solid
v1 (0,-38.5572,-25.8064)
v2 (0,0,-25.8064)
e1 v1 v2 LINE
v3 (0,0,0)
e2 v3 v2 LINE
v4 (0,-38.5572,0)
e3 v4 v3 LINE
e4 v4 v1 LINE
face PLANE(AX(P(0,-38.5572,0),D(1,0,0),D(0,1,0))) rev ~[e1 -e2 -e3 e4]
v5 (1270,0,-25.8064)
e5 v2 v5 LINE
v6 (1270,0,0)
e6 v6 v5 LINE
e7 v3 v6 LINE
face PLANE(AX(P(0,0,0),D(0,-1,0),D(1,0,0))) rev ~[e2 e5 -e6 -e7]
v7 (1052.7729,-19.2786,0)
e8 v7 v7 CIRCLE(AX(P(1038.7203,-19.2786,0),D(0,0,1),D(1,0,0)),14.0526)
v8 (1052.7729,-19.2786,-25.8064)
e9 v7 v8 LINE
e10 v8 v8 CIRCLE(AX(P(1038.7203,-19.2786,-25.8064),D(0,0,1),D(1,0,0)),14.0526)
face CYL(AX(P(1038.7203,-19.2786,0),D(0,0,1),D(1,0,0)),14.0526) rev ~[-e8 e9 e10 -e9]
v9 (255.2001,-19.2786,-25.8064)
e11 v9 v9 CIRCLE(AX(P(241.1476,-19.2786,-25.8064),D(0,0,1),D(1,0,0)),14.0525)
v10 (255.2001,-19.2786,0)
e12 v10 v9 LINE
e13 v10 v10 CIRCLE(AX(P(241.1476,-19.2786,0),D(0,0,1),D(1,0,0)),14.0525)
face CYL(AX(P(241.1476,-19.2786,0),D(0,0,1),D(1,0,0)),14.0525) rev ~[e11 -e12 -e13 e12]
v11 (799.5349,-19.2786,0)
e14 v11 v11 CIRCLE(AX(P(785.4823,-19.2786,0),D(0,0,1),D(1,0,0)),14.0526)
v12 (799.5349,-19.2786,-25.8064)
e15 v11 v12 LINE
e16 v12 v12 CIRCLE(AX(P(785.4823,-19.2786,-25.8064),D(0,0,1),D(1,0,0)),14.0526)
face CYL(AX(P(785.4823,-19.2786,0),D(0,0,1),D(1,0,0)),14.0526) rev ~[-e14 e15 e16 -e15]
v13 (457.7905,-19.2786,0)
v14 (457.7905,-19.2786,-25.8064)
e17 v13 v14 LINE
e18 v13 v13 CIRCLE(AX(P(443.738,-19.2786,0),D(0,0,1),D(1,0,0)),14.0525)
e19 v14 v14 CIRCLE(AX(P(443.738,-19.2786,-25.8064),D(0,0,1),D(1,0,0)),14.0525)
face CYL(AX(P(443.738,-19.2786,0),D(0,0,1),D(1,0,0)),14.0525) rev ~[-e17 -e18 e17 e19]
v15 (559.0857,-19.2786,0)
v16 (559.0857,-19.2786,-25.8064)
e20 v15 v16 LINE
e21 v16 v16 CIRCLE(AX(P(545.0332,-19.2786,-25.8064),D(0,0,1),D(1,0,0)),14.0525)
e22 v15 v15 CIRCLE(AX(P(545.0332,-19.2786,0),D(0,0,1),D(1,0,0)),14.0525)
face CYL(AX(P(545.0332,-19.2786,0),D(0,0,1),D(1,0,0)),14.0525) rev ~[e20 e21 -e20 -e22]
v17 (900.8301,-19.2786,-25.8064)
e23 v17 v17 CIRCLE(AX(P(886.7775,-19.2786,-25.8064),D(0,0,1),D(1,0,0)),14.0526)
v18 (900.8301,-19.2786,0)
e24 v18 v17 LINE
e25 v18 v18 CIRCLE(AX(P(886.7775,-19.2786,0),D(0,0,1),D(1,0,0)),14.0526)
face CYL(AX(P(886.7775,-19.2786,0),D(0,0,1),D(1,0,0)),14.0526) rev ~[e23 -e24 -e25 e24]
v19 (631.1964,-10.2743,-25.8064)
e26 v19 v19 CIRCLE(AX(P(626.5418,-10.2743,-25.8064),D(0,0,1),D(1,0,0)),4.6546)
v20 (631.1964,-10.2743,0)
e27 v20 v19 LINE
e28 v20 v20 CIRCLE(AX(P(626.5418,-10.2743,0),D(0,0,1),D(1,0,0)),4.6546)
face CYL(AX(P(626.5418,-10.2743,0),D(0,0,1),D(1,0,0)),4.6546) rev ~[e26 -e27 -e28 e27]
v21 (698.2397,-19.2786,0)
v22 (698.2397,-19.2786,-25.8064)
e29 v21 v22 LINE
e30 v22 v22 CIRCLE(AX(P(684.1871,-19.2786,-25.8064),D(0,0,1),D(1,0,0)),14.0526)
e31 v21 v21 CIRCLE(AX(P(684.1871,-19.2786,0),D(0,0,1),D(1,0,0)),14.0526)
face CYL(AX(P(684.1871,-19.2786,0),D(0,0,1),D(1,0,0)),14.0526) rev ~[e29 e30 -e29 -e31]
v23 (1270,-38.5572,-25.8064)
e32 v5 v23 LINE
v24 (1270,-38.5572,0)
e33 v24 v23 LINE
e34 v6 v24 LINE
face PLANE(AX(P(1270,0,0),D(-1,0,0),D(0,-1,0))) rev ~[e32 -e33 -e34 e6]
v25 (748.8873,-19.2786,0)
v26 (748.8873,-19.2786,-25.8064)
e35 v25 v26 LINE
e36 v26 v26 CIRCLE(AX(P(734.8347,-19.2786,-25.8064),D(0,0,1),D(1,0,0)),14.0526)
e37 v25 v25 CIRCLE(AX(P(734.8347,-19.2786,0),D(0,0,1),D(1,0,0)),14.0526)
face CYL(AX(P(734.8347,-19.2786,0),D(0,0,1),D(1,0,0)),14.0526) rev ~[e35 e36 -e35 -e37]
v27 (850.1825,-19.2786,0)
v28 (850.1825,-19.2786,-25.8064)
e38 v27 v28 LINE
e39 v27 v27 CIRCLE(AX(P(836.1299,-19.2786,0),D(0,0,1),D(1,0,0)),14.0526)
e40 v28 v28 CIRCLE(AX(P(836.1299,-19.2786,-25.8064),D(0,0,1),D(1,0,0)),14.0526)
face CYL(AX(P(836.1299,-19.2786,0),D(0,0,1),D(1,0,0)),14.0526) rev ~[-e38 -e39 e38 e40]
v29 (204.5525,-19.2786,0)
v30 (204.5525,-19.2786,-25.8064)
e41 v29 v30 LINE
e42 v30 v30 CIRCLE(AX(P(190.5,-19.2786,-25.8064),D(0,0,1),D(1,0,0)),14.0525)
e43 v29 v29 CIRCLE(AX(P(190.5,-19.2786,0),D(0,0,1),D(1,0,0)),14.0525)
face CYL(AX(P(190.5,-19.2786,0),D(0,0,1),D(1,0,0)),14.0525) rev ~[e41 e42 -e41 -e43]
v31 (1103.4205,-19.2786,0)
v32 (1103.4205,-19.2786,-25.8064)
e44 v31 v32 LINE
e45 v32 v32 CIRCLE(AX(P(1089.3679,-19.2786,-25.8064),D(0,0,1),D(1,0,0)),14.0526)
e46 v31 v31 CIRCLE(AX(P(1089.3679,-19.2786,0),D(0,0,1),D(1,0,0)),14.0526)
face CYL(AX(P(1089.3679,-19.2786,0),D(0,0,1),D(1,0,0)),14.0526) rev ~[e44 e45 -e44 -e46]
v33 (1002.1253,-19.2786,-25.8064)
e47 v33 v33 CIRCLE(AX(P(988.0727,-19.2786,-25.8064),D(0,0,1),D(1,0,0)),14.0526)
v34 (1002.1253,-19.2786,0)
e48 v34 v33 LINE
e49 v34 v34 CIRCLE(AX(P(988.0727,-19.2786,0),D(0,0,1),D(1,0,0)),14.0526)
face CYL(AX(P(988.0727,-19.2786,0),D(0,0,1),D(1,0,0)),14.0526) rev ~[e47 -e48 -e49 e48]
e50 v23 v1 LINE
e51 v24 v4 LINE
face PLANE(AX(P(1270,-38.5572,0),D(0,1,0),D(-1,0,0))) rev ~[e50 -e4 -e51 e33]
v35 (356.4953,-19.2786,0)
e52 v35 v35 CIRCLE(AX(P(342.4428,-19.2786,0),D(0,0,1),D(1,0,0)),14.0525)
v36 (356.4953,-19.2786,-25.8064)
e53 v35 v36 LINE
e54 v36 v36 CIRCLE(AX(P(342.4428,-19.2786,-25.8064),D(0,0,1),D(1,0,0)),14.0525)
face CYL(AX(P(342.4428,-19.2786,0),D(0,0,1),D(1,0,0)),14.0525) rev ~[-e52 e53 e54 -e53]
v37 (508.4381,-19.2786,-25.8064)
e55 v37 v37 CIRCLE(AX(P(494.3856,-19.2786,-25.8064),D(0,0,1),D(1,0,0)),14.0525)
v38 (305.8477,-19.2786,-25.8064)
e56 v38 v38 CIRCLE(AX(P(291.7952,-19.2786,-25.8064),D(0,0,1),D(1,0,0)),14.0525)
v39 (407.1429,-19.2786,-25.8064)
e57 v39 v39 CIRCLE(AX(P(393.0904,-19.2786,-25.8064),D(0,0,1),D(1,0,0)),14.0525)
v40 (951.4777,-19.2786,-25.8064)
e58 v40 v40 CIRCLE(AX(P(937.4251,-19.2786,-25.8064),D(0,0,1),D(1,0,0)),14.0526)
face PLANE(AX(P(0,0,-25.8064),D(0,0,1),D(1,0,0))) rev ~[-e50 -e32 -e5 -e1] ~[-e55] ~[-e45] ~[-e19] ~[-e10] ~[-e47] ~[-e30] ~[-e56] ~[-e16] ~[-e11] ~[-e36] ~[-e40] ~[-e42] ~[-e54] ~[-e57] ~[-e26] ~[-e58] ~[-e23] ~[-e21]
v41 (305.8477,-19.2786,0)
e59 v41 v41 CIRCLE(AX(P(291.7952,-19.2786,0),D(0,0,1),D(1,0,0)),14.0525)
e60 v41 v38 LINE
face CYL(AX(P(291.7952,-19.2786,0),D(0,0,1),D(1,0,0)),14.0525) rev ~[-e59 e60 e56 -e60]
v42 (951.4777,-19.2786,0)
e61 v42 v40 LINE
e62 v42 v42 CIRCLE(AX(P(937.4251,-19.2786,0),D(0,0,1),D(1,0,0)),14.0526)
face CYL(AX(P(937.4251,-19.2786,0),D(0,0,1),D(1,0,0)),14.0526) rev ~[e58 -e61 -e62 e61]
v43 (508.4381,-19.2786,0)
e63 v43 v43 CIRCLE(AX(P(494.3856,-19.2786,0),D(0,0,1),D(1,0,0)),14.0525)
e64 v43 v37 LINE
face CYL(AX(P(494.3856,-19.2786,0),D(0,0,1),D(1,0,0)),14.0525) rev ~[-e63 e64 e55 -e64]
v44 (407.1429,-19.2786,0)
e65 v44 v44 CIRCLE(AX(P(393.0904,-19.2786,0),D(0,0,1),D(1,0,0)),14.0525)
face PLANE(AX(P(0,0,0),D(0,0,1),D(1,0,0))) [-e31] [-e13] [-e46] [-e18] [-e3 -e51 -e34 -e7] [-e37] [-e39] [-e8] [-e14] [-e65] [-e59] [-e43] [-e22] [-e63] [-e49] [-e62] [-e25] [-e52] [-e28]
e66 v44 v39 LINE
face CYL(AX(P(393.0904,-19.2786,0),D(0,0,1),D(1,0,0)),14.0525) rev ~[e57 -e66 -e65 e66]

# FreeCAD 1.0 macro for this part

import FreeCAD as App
import Part
import Sketcher
from FreeCAD import Vector
Q = App.Units.Quantity


def add_polygon(sketch, points):
    """Adds a closed chain of lines whose ends are joined by coincident constraints."""
    first, n = sketch.GeometryCount, len(points)
    for a, b in zip(points, points[1:] + points[:1]):
        sketch.addGeometry(Part.LineSegment(App.Vector(*a, 0), App.Vector(*b, 0)), False)
    for i in range(n):
        sketch.addConstraint(Sketcher.Constraint("Coincident", first + i, 2, first + (i + 1) % n, 1))

doc = App.newDocument("Part")
body = doc.addObject("PartDesign::Body", "Body")

# Sketch on XY plane
sketch1 = body.newObject("Sketcher::SketchObject", "Sketch")
sketch1.AttachmentSupport = (doc.getObject("XY_Plane"), [""])
sketch1.MapMode = "FlatFace"
add_polygon(sketch1, [(1270, 0), (0, 0), (0, -38.5572), (1270, -38.5572)])  # lines 0-3
sketch1.addGeometry(Part.Circle(Vector(190.5, -19.2786, 0), Vector(0, 0, 1), 14.0525), False)  # 4
sketch1.addGeometry(Part.Circle(Vector(241.1476, -19.2786, 0), Vector(0, 0, 1), 14.0525), False)  # 5
sketch1.addGeometry(Part.Circle(Vector(291.7952, -19.2786, 0), Vector(0, 0, 1), 14.0525), False)  # 6
sketch1.addGeometry(Part.Circle(Vector(342.4428, -19.2786, 0), Vector(0, 0, 1), 14.0525), False)  # 7
sketch1.addGeometry(Part.Circle(Vector(393.0904, -19.2786, 0), Vector(0, 0, 1), 14.0525), False)  # 8
sketch1.addGeometry(Part.Circle(Vector(443.738, -19.2786, 0), Vector(0, 0, 1), 14.0525), False)  # 9
sketch1.addGeometry(Part.Circle(Vector(494.3856, -19.2786, 0), Vector(0, 0, 1), 14.0525), False)  # 10
sketch1.addGeometry(Part.Circle(Vector(545.0332, -19.2786, 0), Vector(0, 0, 1), 14.0525), False)  # 11
sketch1.addGeometry(Part.Circle(Vector(626.5418, -10.2743, 0), Vector(0, 0, 1), 4.6546), False)  # 12
sketch1.addGeometry(Part.Circle(Vector(684.1871, -19.2786, 0), Vector(0, 0, 1), 14.0526), False)  # 13
sketch1.addGeometry(Part.Circle(Vector(734.8347, -19.2786, 0), Vector(0, 0, 1), 14.0526), False)  # 14
sketch1.addGeometry(Part.Circle(Vector(785.4823, -19.2786, 0), Vector(0, 0, 1), 14.0526), False)  # 15
sketch1.addGeometry(Part.Circle(Vector(836.1299, -19.2786, 0), Vector(0, 0, 1), 14.0526), False)  # 16
sketch1.addGeometry(Part.Circle(Vector(886.7775, -19.2786, 0), Vector(0, 0, 1), 14.0526), False)  # 17
sketch1.addGeometry(Part.Circle(Vector(937.4251, -19.2786, 0), Vector(0, 0, 1), 14.0526), False)  # 18
sketch1.addGeometry(Part.Circle(Vector(988.0727, -19.2786, 0), Vector(0, 0, 1), 14.0526), False)  # 19
sketch1.addGeometry(Part.Circle(Vector(1038.7203, -19.2786, 0), Vector(0, 0, 1), 14.0526), False)  # 20
sketch1.addGeometry(Part.Circle(Vector(1089.3679, -19.2786, 0), Vector(0, 0, 1), 14.0526), False)  # 21
sketch1.addConstraint(Sketcher.Constraint("Horizontal", 0))
sketch1.addConstraint(Sketcher.Constraint("Vertical", 1))
sketch1.addConstraint(Sketcher.Constraint("Horizontal", 2))
sketch1.addConstraint(Sketcher.Constraint("Vertical", 3))
sketch1.addConstraint(Sketcher.Constraint("Coincident", 0, 2, -1, 1))
sketch1.addConstraint(Sketcher.Constraint("Equal", 4, 5))
sketch1.addConstraint(Sketcher.Constraint("Equal", 5, 6))
sketch1.addConstraint(Sketcher.Constraint("Equal", 6, 7))
sketch1.addConstraint(Sketcher.Constraint("Equal", 7, 8))
sketch1.addConstraint(Sketcher.Constraint("Equal", 8, 9))
sketch1.addConstraint(Sketcher.Constraint("Equal", 9, 10))
sketch1.addConstraint(Sketcher.Constraint("Equal", 10, 11))
sketch1.addConstraint(Sketcher.Constraint("Equal", 11, 13))
sketch1.addConstraint(Sketcher.Constraint("Equal", 13, 14))
sketch1.addConstraint(Sketcher.Constraint("Equal", 14, 15))
sketch1.addConstraint(Sketcher.Constraint("Equal", 15, 16))
sketch1.addConstraint(Sketcher.Constraint("Equal", 16, 17))
sketch1.addConstraint(Sketcher.Constraint("Equal", 17, 18))
sketch1.addConstraint(Sketcher.Constraint("Equal", 18, 19))
sketch1.addConstraint(Sketcher.Constraint("Equal", 19, 20))
sketch1.addConstraint(Sketcher.Constraint("Equal", 20, 21))
sketch1.addConstraint(Sketcher.Constraint("Horizontal", 4, 3, 5, 3))
sketch1.addConstraint(Sketcher.Constraint("Horizontal", 5, 3, 6, 3))
sketch1.addConstraint(Sketcher.Constraint("Horizontal", 6, 3, 7, 3))
sketch1.addConstraint(Sketcher.Constraint("Horizontal", 7, 3, 8, 3))
sketch1.addConstraint(Sketcher.Constraint("Horizontal", 8, 3, 9, 3))
sketch1.addConstraint(Sketcher.Constraint("Horizontal", 9, 3, 10, 3))
sketch1.addConstraint(Sketcher.Constraint("Horizontal", 10, 3, 11, 3))
sketch1.addConstraint(Sketcher.Constraint("Horizontal", 11, 3, 13, 3))
sketch1.addConstraint(Sketcher.Constraint("Horizontal", 13, 3, 14, 3))
sketch1.addConstraint(Sketcher.Constraint("Horizontal", 14, 3, 15, 3))
sketch1.addConstraint(Sketcher.Constraint("Horizontal", 15, 3, 16, 3))
sketch1.addConstraint(Sketcher.Constraint("Horizontal", 16, 3, 17, 3))
sketch1.addConstraint(Sketcher.Constraint("Horizontal", 17, 3, 18, 3))
sketch1.addConstraint(Sketcher.Constraint("Horizontal", 18, 3, 19, 3))
sketch1.addConstraint(Sketcher.Constraint("Horizontal", 19, 3, 20, 3))
sketch1.addConstraint(Sketcher.Constraint("Horizontal", 20, 3, 21, 3))
sketch1.addConstraint(Sketcher.Constraint("DistanceX", 0, 2, 0, 1, Q("50 in")))
sketch1.addConstraint(Sketcher.Constraint("Diameter", 4, Q("1.1065 in")))
sketch1.addConstraint(Sketcher.Constraint("Diameter", 12, Q("0.3665 in")))
sketch1.addConstraint(Sketcher.Constraint("DistanceX", -1, 1, 4, 3, Q("7.5 in")))
sketch1.addConstraint(Sketcher.Constraint("DistanceY", 1, 2, 1, 1, Q("1.518 in")))
sketch1.addConstraint(Sketcher.Constraint("DistanceY", 4, 3, -1, 1, Q("0.759 in")))
sketch1.addConstraint(Sketcher.Constraint("DistanceX", 4, 3, 5, 3, Q("1.994 in")))
sketch1.addConstraint(Sketcher.Constraint("DistanceX", 5, 3, 6, 3, Q("1.994 in")))
sketch1.addConstraint(Sketcher.Constraint("DistanceX", 6, 3, 7, 3, Q("1.994 in")))
sketch1.addConstraint(Sketcher.Constraint("DistanceX", 7, 3, 8, 3, Q("1.994 in")))
sketch1.addConstraint(Sketcher.Constraint("DistanceX", 8, 3, 9, 3, Q("1.994 in")))
sketch1.addConstraint(Sketcher.Constraint("DistanceX", 9, 3, 10, 3, Q("1.994 in")))
sketch1.addConstraint(Sketcher.Constraint("DistanceX", 10, 3, 11, 3, Q("1.994 in")))
sketch1.addConstraint(Sketcher.Constraint("DistanceX", 11, 3, 12, 3, Q("3.209 in")))
sketch1.addConstraint(Sketcher.Constraint("DistanceX", 13, 3, 14, 3, Q("1.994 in")))
sketch1.addConstraint(Sketcher.Constraint("DistanceX", 14, 3, 15, 3, Q("1.994 in")))
sketch1.addConstraint(Sketcher.Constraint("DistanceX", 15, 3, 16, 3, Q("1.994 in")))
sketch1.addConstraint(Sketcher.Constraint("DistanceX", 16, 3, 17, 3, Q("1.994 in")))
sketch1.addConstraint(Sketcher.Constraint("DistanceX", 17, 3, 18, 3, Q("1.994 in")))
sketch1.addConstraint(Sketcher.Constraint("DistanceX", 18, 3, 19, 3, Q("1.994 in")))
sketch1.addConstraint(Sketcher.Constraint("DistanceX", 19, 3, 20, 3, Q("1.994 in")))
sketch1.addConstraint(Sketcher.Constraint("DistanceX", 20, 3, 21, 3, Q("1.994 in")))
sketch1.addConstraint(Sketcher.Constraint("DistanceX", 12, 3, 13, 3, Q("2.2695 in")))
sketch1.addConstraint(Sketcher.Constraint("DistanceY", 12, 3, -1, 1, Q("0.4045 in")))
pad1 = body.newObject("PartDesign::Pad", "Pad")
pad1.Profile = sketch1
pad1.Length = Q("1.016 in")
pad1.Reversed = True

doc.recompute()
